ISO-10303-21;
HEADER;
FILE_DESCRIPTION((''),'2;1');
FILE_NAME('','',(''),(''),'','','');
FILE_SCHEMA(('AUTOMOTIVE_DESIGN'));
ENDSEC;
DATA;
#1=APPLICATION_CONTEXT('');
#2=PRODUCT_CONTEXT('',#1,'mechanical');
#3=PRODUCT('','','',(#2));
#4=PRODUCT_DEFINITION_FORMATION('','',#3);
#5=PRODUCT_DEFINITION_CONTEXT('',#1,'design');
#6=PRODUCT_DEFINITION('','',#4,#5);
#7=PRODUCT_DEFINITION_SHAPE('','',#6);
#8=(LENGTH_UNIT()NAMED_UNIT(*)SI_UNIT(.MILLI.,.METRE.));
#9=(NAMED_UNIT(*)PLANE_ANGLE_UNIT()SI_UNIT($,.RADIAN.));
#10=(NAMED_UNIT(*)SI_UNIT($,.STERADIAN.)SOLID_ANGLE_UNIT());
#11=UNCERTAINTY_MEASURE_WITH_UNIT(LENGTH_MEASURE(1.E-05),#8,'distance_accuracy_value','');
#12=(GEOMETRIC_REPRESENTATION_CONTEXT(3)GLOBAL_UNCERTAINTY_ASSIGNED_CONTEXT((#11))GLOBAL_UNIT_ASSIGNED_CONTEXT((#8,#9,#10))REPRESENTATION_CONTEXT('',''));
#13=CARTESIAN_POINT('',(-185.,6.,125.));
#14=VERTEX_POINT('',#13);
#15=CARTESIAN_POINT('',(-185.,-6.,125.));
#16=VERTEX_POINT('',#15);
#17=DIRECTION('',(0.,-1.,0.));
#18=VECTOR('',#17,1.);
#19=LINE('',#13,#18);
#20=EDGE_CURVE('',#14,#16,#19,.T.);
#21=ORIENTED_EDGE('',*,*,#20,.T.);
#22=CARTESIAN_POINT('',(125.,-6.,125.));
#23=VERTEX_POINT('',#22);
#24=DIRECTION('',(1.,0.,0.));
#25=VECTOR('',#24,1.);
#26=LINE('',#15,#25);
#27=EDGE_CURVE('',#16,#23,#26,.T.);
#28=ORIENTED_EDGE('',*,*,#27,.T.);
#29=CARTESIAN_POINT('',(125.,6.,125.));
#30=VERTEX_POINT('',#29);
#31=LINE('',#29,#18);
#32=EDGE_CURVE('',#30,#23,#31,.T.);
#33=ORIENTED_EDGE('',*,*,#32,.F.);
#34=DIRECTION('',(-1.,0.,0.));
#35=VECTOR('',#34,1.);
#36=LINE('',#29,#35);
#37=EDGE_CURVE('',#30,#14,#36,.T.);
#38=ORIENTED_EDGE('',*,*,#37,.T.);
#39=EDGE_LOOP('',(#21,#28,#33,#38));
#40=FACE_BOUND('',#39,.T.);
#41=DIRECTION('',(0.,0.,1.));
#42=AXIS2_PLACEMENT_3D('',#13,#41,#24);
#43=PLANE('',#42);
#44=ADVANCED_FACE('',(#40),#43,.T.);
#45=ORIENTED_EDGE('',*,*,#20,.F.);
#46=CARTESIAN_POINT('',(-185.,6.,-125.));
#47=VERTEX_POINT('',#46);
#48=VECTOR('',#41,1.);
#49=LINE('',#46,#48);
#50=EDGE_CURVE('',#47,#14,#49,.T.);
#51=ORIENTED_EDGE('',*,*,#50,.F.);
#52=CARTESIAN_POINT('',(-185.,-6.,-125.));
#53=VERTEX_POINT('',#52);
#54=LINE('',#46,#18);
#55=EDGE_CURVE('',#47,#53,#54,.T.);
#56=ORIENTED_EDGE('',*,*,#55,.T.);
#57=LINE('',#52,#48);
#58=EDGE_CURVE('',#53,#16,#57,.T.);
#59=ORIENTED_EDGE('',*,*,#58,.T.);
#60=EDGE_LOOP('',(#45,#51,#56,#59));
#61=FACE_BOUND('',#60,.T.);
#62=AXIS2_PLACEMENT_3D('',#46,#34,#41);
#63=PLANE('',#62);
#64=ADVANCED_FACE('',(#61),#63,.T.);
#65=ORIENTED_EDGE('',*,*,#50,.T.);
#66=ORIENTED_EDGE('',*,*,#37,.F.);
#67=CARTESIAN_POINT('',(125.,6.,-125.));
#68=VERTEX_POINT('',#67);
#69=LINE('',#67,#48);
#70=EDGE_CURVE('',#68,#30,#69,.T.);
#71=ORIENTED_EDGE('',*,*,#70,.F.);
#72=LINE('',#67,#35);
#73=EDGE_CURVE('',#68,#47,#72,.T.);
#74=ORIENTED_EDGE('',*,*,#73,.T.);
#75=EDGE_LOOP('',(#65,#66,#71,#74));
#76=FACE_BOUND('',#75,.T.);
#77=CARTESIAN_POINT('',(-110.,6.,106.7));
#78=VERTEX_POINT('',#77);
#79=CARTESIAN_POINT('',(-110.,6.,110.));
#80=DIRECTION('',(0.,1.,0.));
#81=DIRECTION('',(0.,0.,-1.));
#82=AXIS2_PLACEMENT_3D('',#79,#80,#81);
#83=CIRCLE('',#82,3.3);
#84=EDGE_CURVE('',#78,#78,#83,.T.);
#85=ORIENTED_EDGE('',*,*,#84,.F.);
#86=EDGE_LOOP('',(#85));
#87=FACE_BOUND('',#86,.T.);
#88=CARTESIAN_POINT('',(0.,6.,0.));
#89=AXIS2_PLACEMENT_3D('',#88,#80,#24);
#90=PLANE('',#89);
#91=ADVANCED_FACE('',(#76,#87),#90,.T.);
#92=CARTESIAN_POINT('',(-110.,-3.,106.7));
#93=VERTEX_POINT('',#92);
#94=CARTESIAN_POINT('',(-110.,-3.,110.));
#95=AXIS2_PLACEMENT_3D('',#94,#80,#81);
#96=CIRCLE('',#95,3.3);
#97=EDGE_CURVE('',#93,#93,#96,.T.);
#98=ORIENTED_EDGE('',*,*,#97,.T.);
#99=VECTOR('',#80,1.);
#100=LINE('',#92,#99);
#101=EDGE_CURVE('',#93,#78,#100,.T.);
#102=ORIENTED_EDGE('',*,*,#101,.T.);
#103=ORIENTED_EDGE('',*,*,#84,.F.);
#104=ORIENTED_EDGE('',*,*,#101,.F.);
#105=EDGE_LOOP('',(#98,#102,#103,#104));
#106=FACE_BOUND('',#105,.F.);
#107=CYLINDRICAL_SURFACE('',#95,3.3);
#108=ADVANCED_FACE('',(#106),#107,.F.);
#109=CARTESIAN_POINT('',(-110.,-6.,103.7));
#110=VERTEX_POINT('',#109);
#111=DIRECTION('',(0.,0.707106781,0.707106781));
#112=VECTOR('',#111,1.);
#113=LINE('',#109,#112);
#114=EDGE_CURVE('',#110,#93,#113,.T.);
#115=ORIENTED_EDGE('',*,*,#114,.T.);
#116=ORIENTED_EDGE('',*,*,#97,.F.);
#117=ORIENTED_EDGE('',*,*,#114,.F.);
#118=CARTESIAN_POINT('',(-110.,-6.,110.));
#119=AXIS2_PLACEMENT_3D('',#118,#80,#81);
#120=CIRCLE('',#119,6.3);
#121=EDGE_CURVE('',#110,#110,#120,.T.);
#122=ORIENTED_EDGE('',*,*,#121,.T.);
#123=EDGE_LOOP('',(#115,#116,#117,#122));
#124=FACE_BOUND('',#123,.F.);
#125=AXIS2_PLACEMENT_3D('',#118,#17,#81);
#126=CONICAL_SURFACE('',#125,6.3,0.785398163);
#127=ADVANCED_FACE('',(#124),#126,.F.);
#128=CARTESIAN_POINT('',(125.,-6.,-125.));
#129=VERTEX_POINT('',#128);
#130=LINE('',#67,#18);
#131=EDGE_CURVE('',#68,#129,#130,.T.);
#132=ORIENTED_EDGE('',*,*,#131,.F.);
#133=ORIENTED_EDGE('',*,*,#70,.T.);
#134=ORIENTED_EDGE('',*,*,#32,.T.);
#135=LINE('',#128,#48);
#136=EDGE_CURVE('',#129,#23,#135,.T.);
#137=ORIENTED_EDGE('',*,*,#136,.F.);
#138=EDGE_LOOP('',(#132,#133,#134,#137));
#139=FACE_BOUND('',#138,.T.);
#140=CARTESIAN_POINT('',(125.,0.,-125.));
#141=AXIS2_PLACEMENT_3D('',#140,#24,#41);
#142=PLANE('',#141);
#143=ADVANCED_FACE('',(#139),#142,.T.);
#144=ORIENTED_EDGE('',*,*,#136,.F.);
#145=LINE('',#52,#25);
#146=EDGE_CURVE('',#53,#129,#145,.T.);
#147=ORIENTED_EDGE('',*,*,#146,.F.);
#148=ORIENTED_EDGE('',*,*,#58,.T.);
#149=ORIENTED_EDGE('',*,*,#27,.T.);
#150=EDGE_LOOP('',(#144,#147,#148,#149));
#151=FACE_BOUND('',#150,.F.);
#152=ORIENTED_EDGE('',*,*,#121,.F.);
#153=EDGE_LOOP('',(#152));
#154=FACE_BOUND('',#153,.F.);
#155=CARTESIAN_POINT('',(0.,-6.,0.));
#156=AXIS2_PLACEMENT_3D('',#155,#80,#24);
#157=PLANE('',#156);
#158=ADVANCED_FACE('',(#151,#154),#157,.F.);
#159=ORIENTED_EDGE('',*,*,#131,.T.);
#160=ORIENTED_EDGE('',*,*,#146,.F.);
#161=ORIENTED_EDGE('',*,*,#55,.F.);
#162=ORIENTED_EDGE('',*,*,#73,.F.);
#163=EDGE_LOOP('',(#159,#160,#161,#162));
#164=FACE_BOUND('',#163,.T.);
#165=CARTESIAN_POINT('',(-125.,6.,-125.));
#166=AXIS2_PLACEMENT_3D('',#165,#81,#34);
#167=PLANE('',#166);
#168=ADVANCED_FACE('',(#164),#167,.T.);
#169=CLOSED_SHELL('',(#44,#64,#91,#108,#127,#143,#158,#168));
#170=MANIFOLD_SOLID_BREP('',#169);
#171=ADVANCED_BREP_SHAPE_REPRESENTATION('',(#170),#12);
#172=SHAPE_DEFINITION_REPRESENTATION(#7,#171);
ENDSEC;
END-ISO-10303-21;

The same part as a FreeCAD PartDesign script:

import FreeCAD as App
import Part
import Sketcher
from FreeCAD import Vector


def add_polygon(sketch, points):
    """Adds a closed chain of lines whose ends are joined by coincident constraints."""
    first, n = sketch.GeometryCount, len(points)
    for a, b in zip(points, points[1:] + points[:1]):
        sketch.addGeometry(Part.LineSegment(App.Vector(*a, 0), App.Vector(*b, 0)), False)
    for i in range(n):
        sketch.addConstraint(Sketcher.Constraint("Coincident", first + i, 2, first + (i + 1) % n, 1))

doc = App.newDocument("Part")
body = doc.addObject("PartDesign::Body", "Body")

sketch1 = body.newObject("Sketcher::SketchObject", "Sketch")
sketch1.AttachmentSupport = (doc.getObject("XZ_Plane"), [""])
sketch1.MapMode = "FlatFace"
add_polygon(sketch1, [(125, -125), (-125, -125), (-125, 125), (125, 125)])
sketch1.addConstraint([
    Sketcher.Constraint("Horizontal", 0),
    Sketcher.Constraint("Vertical", 1),
    Sketcher.Constraint("Horizontal", 2),
    Sketcher.Constraint("Vertical", 3),
    Sketcher.Constraint("Symmetric", 0, 2, 2, 2, -1, 1),
    Sketcher.Constraint("Equal", 2, 1),
    Sketcher.Constraint("DistanceX", 0, 2, 0, 1, 250.0),
])
pad1 = body.newObject("PartDesign::Pad", "Pad")
pad1.Profile = sketch1
pad1.Length = 12
pad1.Midplane = True

sketch2 = body.newObject("Sketcher::SketchObject", "Sketch001")
sketch2.AttachmentSupport = (doc.getObject("XZ_Plane"), [""])
sketch2.MapMode = "FlatFace"
sketch2.AttachmentOffset = App.Placement(Vector(0, 0, -6), App.Rotation())
add_polygon(sketch2, [(-185, 125), (-125, 125), (-125, -125), (-185, -125)])
sketch2.addConstraint([
    Sketcher.Constraint("Horizontal", 0),
    Sketcher.Constraint("Vertical", 1),
    Sketcher.Constraint("Horizontal", 2),
    Sketcher.Constraint("Vertical", 3),
    Sketcher.Constraint("DistanceX", 0, 1, 0, 2, 60.0),
    Sketcher.Constraint("DistanceY", 1, 2, 1, 1, 250.0),
    Sketcher.Constraint("DistanceX", 0, 2, -1, 1, 125.0),
    Sketcher.Constraint("DistanceY", -1, 1, 0, 2, 125.0),
])
pad2 = body.newObject("PartDesign::Pad", "Pad001")
pad2.Profile = sketch2
pad2.Length = 12

sketch3 = body.newObject("Sketcher::SketchObject", "Sketch002")
sketch3.AttachmentSupport = (doc.getObject("XZ_Plane"), [""])
sketch3.MapMode = "FlatFace"
sketch3.AttachmentOffset = App.Placement(Vector(0, 0, 6), App.Rotation())
sketch3.addGeometry(Part.Circle(Vector(-110, 110, 0), Vector(0, 0, 1), 3.3), False)
sketch3.addConstraint([
    Sketcher.Constraint("Diameter", 0, 6.6),
    Sketcher.Constraint("DistanceX", 0, 3, -1, 1, 110.0),
    Sketcher.Constraint("DistanceY", -1, 1, 0, 3, 110.0),
])
doc.recompute()
hole = body.newObject("PartDesign::Hole", "Hole")
hole.Profile = sketch3
hole.ThreadType = "None"
hole.Diameter = 6.6
hole.DepthType = "ThroughAll"
hole.HoleCutType = "Countersink"
hole.HoleCutDiameter = 12.6
hole.HoleCutCountersinkAngle = 90

doc.recompute()
